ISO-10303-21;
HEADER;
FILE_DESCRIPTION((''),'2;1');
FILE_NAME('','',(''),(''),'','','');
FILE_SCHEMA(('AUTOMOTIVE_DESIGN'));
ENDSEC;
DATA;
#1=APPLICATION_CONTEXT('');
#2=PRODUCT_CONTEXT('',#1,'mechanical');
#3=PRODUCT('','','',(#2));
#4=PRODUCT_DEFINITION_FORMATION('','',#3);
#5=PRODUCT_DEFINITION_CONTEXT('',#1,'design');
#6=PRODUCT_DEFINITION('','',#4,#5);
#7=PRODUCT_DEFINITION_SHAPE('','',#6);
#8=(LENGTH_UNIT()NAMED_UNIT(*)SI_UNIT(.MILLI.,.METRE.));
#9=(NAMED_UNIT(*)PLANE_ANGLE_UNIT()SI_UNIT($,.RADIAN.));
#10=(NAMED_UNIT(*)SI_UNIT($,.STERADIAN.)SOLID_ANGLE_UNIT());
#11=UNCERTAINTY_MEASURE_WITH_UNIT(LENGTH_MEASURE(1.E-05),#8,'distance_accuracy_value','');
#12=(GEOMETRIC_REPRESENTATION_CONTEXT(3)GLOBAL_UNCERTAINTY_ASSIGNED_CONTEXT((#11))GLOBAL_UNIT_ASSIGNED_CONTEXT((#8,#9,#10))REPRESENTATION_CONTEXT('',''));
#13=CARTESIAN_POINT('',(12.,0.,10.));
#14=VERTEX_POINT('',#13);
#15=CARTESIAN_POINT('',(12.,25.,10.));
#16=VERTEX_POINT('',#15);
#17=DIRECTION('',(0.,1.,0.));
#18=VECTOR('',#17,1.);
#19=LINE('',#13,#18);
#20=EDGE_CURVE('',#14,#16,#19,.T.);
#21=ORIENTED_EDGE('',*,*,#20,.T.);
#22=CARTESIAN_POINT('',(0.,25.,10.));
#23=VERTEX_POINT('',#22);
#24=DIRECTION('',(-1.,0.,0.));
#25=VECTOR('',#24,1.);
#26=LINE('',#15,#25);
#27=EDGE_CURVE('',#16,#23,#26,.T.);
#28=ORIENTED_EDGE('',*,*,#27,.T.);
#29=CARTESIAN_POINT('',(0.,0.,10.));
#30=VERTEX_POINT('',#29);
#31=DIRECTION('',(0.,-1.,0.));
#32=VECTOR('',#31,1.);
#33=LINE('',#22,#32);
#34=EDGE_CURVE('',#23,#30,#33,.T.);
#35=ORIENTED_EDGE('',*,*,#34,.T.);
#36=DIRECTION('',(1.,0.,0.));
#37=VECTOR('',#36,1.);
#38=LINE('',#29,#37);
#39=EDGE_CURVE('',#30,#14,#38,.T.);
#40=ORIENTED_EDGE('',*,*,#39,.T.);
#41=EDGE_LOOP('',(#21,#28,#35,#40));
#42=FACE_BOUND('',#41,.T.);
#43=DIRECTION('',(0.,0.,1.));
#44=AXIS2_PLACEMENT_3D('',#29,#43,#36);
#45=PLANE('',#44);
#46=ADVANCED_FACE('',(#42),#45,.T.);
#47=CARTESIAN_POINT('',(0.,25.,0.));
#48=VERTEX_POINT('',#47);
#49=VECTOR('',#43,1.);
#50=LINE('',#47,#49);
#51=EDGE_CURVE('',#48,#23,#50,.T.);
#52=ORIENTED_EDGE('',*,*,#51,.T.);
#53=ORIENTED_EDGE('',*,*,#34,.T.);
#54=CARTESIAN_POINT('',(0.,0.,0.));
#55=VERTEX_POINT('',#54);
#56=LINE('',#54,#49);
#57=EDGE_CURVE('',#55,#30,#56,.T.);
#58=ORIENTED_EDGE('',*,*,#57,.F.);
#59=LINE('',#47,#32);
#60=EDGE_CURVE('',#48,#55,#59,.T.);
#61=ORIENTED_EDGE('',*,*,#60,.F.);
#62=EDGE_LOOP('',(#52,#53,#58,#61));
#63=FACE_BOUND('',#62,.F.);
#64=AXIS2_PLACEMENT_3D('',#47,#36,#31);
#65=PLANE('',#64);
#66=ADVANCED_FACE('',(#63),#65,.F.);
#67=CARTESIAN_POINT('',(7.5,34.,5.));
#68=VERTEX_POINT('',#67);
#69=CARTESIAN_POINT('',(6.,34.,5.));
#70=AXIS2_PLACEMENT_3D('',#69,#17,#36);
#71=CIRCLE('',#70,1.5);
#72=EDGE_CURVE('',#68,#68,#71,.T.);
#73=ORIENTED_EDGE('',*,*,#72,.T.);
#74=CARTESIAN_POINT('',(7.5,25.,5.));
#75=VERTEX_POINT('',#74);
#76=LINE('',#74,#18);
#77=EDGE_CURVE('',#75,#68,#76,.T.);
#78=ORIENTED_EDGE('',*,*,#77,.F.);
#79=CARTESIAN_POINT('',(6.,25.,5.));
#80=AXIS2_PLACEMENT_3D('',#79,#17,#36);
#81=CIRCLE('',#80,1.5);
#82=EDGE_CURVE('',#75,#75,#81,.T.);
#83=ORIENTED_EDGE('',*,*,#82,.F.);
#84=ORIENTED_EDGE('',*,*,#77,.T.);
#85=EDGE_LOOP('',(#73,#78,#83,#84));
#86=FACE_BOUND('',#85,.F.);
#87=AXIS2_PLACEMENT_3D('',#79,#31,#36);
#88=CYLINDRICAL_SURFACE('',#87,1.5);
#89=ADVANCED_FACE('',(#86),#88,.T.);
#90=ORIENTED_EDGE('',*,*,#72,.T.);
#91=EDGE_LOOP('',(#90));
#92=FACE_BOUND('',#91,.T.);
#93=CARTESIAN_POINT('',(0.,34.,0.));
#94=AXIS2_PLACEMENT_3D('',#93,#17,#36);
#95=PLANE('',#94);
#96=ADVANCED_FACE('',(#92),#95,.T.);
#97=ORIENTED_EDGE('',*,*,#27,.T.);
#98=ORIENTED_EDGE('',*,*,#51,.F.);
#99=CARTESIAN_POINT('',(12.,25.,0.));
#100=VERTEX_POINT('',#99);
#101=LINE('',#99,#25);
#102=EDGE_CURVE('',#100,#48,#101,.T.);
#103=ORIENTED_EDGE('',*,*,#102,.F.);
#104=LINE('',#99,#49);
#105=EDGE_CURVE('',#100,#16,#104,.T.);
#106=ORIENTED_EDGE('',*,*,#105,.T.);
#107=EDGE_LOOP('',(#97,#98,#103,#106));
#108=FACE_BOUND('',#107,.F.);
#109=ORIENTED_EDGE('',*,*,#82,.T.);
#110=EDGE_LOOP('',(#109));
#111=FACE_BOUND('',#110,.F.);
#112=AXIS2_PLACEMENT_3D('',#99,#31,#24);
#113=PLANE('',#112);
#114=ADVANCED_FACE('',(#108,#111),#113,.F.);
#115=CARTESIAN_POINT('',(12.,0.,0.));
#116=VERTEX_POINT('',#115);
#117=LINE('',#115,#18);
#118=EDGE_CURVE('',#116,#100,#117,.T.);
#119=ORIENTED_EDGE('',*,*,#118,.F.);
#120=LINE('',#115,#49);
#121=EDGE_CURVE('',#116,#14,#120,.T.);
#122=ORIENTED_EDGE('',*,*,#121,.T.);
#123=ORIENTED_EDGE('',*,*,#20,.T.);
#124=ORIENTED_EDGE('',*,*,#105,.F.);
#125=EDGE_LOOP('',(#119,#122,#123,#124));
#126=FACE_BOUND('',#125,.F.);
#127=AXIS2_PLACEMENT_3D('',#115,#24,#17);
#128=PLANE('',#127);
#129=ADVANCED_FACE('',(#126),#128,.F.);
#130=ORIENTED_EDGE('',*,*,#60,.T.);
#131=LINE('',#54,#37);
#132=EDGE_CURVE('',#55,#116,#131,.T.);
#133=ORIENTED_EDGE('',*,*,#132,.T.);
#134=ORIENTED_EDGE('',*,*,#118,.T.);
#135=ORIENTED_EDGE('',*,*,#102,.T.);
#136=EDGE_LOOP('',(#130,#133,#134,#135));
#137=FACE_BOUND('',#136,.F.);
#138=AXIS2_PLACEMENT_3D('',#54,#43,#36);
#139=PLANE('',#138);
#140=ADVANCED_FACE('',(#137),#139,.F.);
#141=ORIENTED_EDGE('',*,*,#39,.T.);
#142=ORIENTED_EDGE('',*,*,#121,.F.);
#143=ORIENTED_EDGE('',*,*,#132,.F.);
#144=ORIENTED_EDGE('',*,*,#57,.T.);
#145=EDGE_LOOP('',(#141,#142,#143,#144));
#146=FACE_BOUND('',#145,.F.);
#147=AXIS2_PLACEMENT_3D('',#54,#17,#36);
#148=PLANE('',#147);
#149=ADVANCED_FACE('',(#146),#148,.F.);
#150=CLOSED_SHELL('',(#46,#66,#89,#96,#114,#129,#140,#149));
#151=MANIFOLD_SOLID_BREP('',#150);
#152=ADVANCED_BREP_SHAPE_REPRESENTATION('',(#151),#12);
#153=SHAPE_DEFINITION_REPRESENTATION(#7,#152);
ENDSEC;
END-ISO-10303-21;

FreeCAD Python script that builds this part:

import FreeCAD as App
import Part
import Sketcher
from FreeCAD import Vector


def add_polygon(sketch, points):
    """Adds a closed chain of lines whose ends are joined by coincident constraints."""
    first, n = sketch.GeometryCount, len(points)
    for a, b in zip(points, points[1:] + points[:1]):
        sketch.addGeometry(Part.LineSegment(App.Vector(*a, 0), App.Vector(*b, 0)), False)
    for i in range(n):
        sketch.addConstraint(Sketcher.Constraint("Coincident", first + i, 2, first + (i + 1) % n, 1))

doc = App.newDocument("Part")
body = doc.addObject("PartDesign::Body", "Body")

sketch1 = body.newObject("Sketcher::SketchObject", "Sketch")
sketch1.AttachmentSupport = (doc.getObject("XY_Plane"), [""])
sketch1.MapMode = "FlatFace"
add_polygon(sketch1, [(0, 25), (0, 0), (12, 0), (12, 25)])
sketch1.addConstraint(Sketcher.Constraint("Vertical", 0))
sketch1.addConstraint(Sketcher.Constraint("Horizontal", 1))
sketch1.addConstraint(Sketcher.Constraint("Vertical", 2))
sketch1.addConstraint(Sketcher.Constraint("Horizontal", 3))
sketch1.addConstraint(Sketcher.Constraint("Coincident", 0, 2, -1, 1))
sketch1.addConstraint(Sketcher.Constraint("DistanceX", 1, 1, 1, 2, 12.0))
sketch1.addConstraint(Sketcher.Constraint("DistanceY", 0, 2, 0, 1, 25.0))
pad1 = body.newObject("PartDesign::Pad", "Pad")
pad1.Profile = sketch1
pad1.Length = 10

sketch2 = body.newObject("Sketcher::SketchObject", "Sketch001")
sketch2.AttachmentSupport = (doc.getObject("XZ_Plane"), [""])
sketch2.MapMode = "FlatFace"
sketch2.AttachmentOffset = App.Placement(Vector(0, 0, -25), App.Rotation())
sketch2.addGeometry(Part.Circle(Vector(6, 5, 0), Vector(0, 0, 1), 1.5), False)
sketch2.addConstraint(Sketcher.Constraint("Diameter", 0, 3.0))
sketch2.addConstraint(Sketcher.Constraint("DistanceX", -1, 1, 0, 3, 6.0))
sketch2.addConstraint(Sketcher.Constraint("DistanceY", -1, 1, 0, 3, 5.0))
pad2 = body.newObject("PartDesign::Pad", "Pad001")
pad2.Profile = sketch2
pad2.Length = 9
pad2.Reversed = True

doc.recompute()
